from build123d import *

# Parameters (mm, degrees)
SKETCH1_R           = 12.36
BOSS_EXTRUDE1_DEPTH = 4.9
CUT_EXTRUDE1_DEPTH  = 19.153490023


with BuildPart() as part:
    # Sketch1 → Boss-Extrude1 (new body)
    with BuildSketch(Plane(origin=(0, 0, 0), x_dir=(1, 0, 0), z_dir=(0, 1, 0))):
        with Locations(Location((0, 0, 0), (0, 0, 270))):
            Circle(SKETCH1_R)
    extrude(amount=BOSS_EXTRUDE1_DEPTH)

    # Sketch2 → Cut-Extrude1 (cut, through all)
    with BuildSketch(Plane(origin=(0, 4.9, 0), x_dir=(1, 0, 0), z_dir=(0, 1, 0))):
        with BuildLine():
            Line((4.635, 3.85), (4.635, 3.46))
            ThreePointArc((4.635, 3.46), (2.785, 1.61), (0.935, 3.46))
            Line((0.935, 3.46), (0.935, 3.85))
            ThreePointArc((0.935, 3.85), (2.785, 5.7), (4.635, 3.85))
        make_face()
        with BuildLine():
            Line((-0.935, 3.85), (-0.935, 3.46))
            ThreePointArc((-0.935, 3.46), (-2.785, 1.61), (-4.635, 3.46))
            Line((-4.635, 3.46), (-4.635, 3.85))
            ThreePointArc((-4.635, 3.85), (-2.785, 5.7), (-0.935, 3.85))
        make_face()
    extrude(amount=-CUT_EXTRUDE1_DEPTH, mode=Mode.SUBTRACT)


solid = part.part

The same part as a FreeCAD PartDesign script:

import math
import FreeCAD as App
import Part
import Sketcher

V = App.Vector
Q = App.Units.Quantity

doc = App.newDocument("Part")
body = doc.addObject("PartDesign::Body", "Body")

sketch1 = doc.addObject("Sketcher::SketchObject", "Sketch")
body.addObject(sketch1)
sketch1.AttachmentSupport = (doc.XZ_Plane, [""])
sketch1.MapMode = "FlatFace"
sketch1.addGeometry(Part.Circle(V(0, 0, 0), V(0, 0, 1), 12), False)
sketch1.addConstraint([
    Sketcher.Constraint("Coincident", 0, 3, -1, 1),
    Sketcher.Constraint("Diameter", 0, Q("24.72 mm")),
])
pad1 = doc.addObject("PartDesign::Pad", "Pad")
body.addObject(pad1)
pad1.Profile = sketch1
pad1.Length = 4.9
pad1.Reversed = True

sketch2 = doc.addObject("Sketcher::SketchObject", "Sketch001")
body.addObject(sketch2)
sketch2.AttachmentSupport = (doc.XZ_Plane, [""])
sketch2.MapMode = "FlatFace"
sketch2.AttachmentOffset = App.Placement(V(0, 0, -4.9), App.Rotation())
sketch2.addGeometry([
    Part.LineSegment(V(4.63, -3.46, 0), V(4.63, -3.85, 0)),
    Part.ArcOfCircle(Part.Circle(V(2.79, -3.85, 0), V(0, 0, 1), 1.85), math.radians(180), math.radians(360)),
    Part.LineSegment(V(0.94, -3.85, 0), V(0.94, -3.46, 0)),
    Part.ArcOfCircle(Part.Circle(V(2.79, -3.46, 0), V(0, 0, 1), 1.85), math.radians(0), math.radians(180)),
    Part.LineSegment(V(-0.94, -3.46, 0), V(-0.94, -3.85, 0)),
    Part.ArcOfCircle(Part.Circle(V(-2.79, -3.85, 0), V(0, 0, 1), 1.85), math.radians(180), math.radians(360)),
    Part.LineSegment(V(-4.63, -3.85, 0), V(-4.63, -3.46, 0)),
    Part.ArcOfCircle(Part.Circle(V(-2.79, -3.46, 0), V(0, 0, 1), 1.85), math.radians(0), math.radians(180)),
], False)
sketch2.addConstraint([
    Sketcher.Constraint("Tangent", 0, 2, 1, 2),
    Sketcher.Constraint("Tangent", 1, 1, 2, 1),
    Sketcher.Constraint("Tangent", 2, 2, 3, 2),
    Sketcher.Constraint("Tangent", 3, 1, 0, 1),
    Sketcher.Constraint("Tangent", 4, 2, 5, 2),
    Sketcher.Constraint("Tangent", 5, 1, 6, 1),
    Sketcher.Constraint("Tangent", 6, 2, 7, 2),
    Sketcher.Constraint("Tangent", 7, 1, 4, 1),
    Sketcher.Constraint("Vertical", 0),
    Sketcher.Constraint("Vertical", 2),
    Sketcher.Constraint("Vertical", 4),
    Sketcher.Constraint("Vertical", 6),
    Sketcher.Constraint("Equal", 3, 5),
    Sketcher.Constraint("Symmetric", 1, 3, 5, 3, -2),
    Sketcher.Constraint("Horizontal", 3, 3, 7, 3),
    Sketcher.Constraint("Radius", 1, Q("1.85 mm")),
    Sketcher.Constraint("DistanceY", 0, 2, 0, 1, Q("0.39 mm")),
    Sketcher.Constraint("DistanceY", 1, 3, -1, 1, Q("3.85 mm")),
    Sketcher.Constraint("DistanceX", 5, 3, 1, 3, Q("5.57 mm")),
])
pocket1 = doc.addObject("PartDesign::Pocket", "Pocket")
body.addObject(pocket1)
pocket1.Profile = sketch2
pocket1.Type = "ThroughAll"
pocket1.Reversed = True

doc.recompute()
